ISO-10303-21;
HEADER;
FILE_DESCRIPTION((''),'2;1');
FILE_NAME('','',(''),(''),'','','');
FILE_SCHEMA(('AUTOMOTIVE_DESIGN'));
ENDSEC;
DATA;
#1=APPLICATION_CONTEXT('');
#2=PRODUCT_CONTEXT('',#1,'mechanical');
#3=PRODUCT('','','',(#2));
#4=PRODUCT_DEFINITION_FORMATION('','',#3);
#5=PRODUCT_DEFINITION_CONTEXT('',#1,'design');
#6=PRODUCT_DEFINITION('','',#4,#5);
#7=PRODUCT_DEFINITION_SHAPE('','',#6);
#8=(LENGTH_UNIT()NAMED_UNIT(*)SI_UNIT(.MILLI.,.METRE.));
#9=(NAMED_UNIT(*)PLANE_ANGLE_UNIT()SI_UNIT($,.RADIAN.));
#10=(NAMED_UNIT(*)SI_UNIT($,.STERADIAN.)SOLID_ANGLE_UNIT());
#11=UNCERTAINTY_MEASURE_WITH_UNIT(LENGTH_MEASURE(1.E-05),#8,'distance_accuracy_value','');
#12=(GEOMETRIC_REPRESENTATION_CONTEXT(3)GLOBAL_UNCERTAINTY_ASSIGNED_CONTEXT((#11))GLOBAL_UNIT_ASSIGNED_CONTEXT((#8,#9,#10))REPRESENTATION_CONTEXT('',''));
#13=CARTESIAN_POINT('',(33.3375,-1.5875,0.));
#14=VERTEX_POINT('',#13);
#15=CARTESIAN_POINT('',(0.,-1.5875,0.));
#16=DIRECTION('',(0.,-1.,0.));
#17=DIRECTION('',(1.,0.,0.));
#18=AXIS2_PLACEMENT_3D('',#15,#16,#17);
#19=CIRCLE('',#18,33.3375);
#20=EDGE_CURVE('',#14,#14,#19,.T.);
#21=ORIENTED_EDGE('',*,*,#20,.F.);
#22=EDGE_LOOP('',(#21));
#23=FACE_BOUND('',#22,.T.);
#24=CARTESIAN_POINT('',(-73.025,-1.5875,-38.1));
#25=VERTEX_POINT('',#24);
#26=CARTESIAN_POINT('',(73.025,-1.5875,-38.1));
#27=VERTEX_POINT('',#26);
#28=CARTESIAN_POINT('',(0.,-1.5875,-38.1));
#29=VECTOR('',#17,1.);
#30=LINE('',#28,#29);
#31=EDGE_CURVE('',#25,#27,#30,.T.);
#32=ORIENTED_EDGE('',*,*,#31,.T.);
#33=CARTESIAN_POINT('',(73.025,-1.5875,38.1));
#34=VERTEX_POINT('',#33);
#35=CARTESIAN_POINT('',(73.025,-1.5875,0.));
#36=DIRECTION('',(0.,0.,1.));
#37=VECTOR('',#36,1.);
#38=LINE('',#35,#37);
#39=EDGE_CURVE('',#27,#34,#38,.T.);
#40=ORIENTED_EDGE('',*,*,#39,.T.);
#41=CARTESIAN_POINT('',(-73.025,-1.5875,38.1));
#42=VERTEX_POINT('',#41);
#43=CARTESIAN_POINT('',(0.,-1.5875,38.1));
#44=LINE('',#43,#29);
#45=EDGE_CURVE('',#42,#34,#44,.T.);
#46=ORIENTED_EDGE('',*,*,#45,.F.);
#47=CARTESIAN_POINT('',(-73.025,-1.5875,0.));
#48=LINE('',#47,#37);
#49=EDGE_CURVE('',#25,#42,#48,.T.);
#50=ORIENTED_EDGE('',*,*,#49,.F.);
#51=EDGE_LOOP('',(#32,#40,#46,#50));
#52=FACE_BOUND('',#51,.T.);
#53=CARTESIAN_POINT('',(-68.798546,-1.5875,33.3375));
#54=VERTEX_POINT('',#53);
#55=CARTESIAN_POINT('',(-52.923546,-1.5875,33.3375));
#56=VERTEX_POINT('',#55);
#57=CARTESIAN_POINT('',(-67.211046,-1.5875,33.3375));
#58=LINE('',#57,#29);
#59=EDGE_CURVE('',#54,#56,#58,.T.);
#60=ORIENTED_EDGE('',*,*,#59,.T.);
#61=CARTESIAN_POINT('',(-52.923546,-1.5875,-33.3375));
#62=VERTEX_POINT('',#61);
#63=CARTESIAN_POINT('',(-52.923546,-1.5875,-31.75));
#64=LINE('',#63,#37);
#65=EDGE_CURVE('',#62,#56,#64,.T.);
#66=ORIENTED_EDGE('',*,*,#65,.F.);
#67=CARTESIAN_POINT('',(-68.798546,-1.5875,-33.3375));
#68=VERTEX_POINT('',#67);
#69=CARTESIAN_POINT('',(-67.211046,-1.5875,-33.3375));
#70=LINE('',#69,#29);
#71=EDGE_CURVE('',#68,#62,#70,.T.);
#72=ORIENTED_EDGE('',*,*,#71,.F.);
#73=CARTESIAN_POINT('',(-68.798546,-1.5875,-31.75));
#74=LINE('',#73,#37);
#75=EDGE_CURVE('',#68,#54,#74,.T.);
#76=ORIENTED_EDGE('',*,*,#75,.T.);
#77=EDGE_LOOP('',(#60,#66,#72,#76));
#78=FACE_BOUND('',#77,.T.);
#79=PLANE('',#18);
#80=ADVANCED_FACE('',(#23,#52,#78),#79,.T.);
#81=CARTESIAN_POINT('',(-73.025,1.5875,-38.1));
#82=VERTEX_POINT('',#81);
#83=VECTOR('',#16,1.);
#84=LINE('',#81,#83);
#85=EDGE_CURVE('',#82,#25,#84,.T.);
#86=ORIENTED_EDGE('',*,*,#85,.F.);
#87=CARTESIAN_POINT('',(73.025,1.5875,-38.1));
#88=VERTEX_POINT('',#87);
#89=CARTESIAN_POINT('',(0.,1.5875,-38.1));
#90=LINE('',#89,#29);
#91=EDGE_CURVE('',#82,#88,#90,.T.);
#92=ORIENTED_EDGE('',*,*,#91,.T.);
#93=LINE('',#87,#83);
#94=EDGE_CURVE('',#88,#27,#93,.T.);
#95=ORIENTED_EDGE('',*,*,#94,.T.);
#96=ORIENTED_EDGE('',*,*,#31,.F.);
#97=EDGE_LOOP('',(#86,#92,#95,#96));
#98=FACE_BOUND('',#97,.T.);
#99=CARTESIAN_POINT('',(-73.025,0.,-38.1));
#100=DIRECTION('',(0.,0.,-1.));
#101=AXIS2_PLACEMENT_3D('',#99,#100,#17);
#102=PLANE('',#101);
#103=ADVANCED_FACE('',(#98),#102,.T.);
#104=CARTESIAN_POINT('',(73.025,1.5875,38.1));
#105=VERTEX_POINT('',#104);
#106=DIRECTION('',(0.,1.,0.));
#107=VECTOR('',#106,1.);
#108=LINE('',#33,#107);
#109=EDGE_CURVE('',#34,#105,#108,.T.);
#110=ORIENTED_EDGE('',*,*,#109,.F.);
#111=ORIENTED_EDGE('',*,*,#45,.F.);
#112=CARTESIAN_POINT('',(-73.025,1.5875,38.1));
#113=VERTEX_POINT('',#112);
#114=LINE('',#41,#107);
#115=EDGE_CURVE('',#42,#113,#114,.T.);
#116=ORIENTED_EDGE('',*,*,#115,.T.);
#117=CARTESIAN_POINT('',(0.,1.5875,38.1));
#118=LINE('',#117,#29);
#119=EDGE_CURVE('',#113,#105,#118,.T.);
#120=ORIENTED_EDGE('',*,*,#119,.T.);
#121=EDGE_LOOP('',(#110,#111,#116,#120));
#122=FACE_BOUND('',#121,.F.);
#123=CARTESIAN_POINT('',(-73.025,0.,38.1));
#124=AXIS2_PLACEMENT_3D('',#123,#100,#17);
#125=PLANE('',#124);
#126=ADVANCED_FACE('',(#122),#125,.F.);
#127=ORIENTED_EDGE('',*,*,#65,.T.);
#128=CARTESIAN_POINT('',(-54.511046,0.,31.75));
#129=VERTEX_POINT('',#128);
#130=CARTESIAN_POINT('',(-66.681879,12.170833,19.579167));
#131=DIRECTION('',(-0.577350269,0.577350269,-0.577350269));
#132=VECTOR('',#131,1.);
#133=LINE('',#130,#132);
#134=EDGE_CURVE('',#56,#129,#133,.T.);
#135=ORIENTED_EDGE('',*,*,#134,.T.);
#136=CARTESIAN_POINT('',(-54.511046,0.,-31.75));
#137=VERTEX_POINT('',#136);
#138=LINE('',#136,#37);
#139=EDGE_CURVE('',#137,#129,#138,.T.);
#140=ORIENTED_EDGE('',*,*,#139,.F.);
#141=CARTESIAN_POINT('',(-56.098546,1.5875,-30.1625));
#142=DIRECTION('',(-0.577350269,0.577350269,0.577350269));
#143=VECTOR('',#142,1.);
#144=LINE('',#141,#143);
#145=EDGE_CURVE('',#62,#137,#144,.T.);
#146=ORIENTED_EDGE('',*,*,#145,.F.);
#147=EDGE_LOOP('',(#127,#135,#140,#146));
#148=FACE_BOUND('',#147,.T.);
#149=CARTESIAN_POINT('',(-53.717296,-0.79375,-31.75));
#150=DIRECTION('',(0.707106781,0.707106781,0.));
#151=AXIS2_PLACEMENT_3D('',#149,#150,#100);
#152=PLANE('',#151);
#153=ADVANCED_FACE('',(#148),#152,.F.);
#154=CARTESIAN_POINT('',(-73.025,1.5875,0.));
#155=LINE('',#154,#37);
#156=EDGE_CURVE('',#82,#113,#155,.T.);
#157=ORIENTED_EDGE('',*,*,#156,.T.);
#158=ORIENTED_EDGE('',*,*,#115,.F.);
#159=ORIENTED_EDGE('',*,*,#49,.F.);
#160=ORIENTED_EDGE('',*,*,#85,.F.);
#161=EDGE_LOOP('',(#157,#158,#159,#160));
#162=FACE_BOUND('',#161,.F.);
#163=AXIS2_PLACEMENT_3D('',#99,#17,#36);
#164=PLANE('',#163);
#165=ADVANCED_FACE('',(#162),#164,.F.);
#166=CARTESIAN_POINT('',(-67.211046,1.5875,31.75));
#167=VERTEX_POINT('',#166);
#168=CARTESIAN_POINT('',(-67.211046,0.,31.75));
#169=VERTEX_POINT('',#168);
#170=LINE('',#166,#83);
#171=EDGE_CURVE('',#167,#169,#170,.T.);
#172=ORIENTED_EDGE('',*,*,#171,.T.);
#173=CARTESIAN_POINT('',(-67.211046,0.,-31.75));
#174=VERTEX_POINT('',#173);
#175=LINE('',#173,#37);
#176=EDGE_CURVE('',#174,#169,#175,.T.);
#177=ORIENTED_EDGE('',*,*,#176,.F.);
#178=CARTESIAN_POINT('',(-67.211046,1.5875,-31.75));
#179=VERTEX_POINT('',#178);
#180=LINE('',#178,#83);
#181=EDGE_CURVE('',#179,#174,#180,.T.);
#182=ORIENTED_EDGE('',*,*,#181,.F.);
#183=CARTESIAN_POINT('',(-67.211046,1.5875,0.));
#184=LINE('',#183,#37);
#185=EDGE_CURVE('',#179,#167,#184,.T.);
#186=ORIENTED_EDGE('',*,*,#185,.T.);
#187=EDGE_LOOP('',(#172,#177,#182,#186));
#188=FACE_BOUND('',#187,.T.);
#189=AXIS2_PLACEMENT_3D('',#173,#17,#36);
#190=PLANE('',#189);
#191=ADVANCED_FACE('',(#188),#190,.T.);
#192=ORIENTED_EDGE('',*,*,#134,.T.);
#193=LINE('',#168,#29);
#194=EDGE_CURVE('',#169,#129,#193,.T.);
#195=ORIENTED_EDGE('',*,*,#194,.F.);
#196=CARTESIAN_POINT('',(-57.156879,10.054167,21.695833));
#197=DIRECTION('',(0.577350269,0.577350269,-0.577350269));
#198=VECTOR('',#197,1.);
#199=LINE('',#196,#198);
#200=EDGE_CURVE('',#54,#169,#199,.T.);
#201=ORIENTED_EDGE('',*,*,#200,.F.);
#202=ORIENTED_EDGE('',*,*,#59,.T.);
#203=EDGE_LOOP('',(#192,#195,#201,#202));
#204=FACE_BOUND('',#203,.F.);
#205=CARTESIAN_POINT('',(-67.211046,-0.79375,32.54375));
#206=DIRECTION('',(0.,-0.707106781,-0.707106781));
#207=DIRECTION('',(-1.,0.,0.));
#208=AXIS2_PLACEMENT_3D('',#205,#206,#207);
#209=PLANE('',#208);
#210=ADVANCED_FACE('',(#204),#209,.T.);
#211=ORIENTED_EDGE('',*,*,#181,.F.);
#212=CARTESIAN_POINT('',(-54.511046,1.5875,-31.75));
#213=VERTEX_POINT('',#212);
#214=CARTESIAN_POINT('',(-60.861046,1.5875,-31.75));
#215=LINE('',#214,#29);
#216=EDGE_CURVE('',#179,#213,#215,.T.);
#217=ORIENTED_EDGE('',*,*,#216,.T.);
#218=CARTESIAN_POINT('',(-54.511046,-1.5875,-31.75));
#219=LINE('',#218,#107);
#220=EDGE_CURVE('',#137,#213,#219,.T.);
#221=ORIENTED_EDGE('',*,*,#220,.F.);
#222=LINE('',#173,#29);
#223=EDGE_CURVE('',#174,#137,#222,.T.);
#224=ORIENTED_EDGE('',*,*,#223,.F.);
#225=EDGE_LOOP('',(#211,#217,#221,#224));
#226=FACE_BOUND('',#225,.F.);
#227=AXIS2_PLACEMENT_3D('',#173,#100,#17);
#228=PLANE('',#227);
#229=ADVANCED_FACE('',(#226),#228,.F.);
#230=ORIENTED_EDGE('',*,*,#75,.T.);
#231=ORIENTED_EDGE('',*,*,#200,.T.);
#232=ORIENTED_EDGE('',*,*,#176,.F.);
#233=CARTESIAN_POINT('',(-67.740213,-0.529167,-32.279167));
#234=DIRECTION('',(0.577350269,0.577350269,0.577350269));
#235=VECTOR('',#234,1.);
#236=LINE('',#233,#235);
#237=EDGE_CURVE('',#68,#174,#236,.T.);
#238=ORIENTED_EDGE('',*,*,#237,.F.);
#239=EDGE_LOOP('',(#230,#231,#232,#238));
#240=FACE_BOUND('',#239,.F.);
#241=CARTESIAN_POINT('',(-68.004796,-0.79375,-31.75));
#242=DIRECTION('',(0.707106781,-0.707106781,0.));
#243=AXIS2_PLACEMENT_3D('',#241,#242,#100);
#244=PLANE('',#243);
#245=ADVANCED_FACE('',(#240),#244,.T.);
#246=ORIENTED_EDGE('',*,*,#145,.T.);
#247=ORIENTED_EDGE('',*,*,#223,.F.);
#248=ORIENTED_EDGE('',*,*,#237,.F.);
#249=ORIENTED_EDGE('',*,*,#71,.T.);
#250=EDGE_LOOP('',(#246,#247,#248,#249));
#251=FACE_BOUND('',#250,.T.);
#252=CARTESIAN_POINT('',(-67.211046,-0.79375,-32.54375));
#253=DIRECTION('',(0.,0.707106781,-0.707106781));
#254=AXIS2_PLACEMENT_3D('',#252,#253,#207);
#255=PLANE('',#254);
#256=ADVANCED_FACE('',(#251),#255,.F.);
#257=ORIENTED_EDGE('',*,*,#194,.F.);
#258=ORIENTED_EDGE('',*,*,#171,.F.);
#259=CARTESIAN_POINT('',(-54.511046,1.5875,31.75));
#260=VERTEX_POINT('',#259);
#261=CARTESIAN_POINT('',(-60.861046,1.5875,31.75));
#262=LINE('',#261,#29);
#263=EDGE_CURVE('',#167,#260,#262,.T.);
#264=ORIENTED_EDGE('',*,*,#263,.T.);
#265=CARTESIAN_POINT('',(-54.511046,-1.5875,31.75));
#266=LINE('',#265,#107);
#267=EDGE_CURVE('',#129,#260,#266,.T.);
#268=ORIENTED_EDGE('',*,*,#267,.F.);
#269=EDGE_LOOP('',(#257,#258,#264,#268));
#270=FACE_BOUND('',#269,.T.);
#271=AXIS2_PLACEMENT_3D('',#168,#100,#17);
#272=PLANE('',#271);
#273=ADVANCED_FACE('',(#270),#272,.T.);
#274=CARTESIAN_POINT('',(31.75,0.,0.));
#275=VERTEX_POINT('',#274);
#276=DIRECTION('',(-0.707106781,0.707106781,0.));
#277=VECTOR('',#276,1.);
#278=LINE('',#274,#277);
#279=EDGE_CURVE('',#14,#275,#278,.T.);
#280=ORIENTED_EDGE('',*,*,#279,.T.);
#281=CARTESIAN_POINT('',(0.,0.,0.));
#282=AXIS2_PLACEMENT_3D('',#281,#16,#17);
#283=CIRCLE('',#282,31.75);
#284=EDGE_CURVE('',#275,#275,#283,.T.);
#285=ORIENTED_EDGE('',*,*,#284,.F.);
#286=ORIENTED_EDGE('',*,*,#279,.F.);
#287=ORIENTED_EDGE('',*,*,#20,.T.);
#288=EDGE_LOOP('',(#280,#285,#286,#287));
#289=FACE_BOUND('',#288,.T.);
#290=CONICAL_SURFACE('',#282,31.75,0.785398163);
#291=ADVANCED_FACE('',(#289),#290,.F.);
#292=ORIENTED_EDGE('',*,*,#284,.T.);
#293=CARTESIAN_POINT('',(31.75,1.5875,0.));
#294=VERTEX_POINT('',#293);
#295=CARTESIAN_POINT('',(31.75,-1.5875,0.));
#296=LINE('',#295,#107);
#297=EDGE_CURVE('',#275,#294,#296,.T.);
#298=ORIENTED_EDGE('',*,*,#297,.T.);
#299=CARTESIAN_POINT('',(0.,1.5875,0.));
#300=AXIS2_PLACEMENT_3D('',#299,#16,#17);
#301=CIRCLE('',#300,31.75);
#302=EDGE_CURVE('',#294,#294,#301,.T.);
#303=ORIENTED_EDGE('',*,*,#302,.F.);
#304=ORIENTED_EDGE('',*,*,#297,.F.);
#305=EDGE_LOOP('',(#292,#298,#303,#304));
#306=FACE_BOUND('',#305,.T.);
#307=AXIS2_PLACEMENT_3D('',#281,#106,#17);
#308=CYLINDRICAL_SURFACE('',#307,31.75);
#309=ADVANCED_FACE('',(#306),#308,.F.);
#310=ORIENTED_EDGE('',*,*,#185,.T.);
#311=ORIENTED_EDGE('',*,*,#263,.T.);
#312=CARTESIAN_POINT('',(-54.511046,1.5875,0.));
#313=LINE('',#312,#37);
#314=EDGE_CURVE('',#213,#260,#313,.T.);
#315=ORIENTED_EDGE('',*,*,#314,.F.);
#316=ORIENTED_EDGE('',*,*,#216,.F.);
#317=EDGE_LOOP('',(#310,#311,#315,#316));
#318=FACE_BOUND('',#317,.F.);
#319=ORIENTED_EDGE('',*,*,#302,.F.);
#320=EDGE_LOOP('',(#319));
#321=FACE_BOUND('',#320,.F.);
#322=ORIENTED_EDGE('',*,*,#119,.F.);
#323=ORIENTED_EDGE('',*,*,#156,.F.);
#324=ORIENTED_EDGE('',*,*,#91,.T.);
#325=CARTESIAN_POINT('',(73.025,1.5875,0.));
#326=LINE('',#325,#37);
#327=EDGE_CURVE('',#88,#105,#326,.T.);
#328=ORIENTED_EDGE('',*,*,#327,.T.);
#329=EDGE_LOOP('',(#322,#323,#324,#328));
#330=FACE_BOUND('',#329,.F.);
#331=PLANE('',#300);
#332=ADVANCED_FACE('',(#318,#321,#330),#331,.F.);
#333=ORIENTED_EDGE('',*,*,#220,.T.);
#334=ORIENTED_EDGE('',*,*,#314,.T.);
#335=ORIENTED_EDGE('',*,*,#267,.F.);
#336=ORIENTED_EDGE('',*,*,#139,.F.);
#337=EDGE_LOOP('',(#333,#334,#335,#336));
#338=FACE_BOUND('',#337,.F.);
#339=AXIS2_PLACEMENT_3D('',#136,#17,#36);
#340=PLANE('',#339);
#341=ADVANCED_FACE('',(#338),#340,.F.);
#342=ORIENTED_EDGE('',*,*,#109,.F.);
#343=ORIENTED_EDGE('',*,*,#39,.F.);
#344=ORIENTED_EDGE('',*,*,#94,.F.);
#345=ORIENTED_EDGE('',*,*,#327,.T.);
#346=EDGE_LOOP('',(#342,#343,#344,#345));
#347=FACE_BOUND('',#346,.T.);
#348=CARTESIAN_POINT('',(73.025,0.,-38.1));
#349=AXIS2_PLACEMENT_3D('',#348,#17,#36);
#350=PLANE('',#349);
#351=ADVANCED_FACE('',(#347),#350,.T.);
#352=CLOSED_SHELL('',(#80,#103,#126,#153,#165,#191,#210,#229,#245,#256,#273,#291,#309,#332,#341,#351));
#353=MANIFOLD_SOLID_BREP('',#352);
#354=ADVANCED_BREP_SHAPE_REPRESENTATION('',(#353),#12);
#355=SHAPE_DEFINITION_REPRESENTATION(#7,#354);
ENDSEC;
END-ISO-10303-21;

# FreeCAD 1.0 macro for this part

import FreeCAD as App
import Part
import Sketcher
from FreeCAD import Vector
Q = App.Units.Quantity


def edges_at(feature, points):
    """Names of the edges that pass closest to the given points."""
    edges = feature.Shape.Edges
    near = lambda p: min(range(len(edges)), key=lambda i: edges[i].distToShape(Part.Vertex(*p))[0])
    return sorted({f"Edge{near(p) + 1}" for p in points})


def add_polygon(sketch, points):
    """Adds a closed chain of lines whose ends are joined by coincident constraints."""
    first, n = sketch.GeometryCount, len(points)
    for a, b in zip(points, points[1:] + points[:1]):
        sketch.addGeometry(Part.LineSegment(App.Vector(*a, 0), App.Vector(*b, 0)), False)
    for i in range(n):
        sketch.addConstraint(Sketcher.Constraint("Coincident", first + i, 2, first + (i + 1) % n, 1))

doc = App.newDocument("Part")
body = doc.addObject("PartDesign::Body", "Body")

sketch1 = doc.addObject("Sketcher::SketchObject", "Sketch")
body.addObject(sketch1)
sketch1.AttachmentSupport = (doc.XZ_Plane, [""])
sketch1.MapMode = "FlatFace"
add_polygon(sketch1, [(-73.025, 38.1), (-73.025, -38.1), (73.025, -38.1), (73.025, 38.1)])
add_polygon(sketch1, [(-54.511046, -31.75), (-67.211046, -31.75), (-67.211046, 31.75), (-54.511046, 31.75)])
sketch1.addGeometry(Part.Circle(Vector(0, 0, 0), Vector(0, 0, 1), 31.75), False)
sketch1.addConstraint(Sketcher.Constraint("Vertical", 0))
sketch1.addConstraint(Sketcher.Constraint("Horizontal", 1))
sketch1.addConstraint(Sketcher.Constraint("Vertical", 2))
sketch1.addConstraint(Sketcher.Constraint("Horizontal", 3))
sketch1.addConstraint(Sketcher.Constraint("Horizontal", 4))
sketch1.addConstraint(Sketcher.Constraint("Vertical", 5))
sketch1.addConstraint(Sketcher.Constraint("Horizontal", 6))
sketch1.addConstraint(Sketcher.Constraint("Vertical", 7))
sketch1.addConstraint(Sketcher.Constraint("Coincident", 8, 3, -1, 1))
sketch1.addConstraint(Sketcher.Constraint("Symmetric", 0, 2, 2, 2, -1, 1))
sketch1.addConstraint(Sketcher.Constraint("Diameter", 8, Q("2.5 in")))
sketch1.addConstraint(Sketcher.Constraint("DistanceY", 0, 2, 0, 1, Q("3 in")))
sketch1.addConstraint(Sketcher.Constraint("DistanceX", 4, 2, 4, 1, Q("0.5 in")))
sketch1.addConstraint(Sketcher.Constraint("DistanceY", 5, 1, 5, 2, Q("2.5 in")))
sketch1.addConstraint(Sketcher.Constraint("DistanceX", 1, 1, 1, 2, Q("5.75 in")))
sketch1.addConstraint(Sketcher.Constraint("DistanceY", 4, 2, -1, 1, Q("1.25 in")))
sketch1.addConstraint(Sketcher.Constraint("DistanceX", 4, 2, -1, 1, 67.211046))
pad1 = doc.addObject("PartDesign::Pad", "Pad")
body.addObject(pad1)
pad1.Profile = sketch1
pad1.Length = Q("0.125 in")
pad1.Midplane = True
doc.recompute()

chamfer = doc.addObject("PartDesign::Chamfer", "Chamfer")
body.addObject(chamfer)
chamfer.Base = (pad1, edges_at(pad1, [
    (-54.511, -1.587, 0),
    (-60.861, -1.587, -31.75),
    (-67.211, -1.587, 0),
    (-60.861, -1.587, 31.75),
]))
chamfer.Size = Q("0.0625 in")
doc.recompute()

chamfer2 = doc.addObject("PartDesign::Chamfer", "Chamfer001")
body.addObject(chamfer2)
chamfer2.Base = (chamfer, edges_at(chamfer, [(-31.75, -1.587, 0)]))
chamfer2.Size = Q("0.0625 in")

doc.recompute()
